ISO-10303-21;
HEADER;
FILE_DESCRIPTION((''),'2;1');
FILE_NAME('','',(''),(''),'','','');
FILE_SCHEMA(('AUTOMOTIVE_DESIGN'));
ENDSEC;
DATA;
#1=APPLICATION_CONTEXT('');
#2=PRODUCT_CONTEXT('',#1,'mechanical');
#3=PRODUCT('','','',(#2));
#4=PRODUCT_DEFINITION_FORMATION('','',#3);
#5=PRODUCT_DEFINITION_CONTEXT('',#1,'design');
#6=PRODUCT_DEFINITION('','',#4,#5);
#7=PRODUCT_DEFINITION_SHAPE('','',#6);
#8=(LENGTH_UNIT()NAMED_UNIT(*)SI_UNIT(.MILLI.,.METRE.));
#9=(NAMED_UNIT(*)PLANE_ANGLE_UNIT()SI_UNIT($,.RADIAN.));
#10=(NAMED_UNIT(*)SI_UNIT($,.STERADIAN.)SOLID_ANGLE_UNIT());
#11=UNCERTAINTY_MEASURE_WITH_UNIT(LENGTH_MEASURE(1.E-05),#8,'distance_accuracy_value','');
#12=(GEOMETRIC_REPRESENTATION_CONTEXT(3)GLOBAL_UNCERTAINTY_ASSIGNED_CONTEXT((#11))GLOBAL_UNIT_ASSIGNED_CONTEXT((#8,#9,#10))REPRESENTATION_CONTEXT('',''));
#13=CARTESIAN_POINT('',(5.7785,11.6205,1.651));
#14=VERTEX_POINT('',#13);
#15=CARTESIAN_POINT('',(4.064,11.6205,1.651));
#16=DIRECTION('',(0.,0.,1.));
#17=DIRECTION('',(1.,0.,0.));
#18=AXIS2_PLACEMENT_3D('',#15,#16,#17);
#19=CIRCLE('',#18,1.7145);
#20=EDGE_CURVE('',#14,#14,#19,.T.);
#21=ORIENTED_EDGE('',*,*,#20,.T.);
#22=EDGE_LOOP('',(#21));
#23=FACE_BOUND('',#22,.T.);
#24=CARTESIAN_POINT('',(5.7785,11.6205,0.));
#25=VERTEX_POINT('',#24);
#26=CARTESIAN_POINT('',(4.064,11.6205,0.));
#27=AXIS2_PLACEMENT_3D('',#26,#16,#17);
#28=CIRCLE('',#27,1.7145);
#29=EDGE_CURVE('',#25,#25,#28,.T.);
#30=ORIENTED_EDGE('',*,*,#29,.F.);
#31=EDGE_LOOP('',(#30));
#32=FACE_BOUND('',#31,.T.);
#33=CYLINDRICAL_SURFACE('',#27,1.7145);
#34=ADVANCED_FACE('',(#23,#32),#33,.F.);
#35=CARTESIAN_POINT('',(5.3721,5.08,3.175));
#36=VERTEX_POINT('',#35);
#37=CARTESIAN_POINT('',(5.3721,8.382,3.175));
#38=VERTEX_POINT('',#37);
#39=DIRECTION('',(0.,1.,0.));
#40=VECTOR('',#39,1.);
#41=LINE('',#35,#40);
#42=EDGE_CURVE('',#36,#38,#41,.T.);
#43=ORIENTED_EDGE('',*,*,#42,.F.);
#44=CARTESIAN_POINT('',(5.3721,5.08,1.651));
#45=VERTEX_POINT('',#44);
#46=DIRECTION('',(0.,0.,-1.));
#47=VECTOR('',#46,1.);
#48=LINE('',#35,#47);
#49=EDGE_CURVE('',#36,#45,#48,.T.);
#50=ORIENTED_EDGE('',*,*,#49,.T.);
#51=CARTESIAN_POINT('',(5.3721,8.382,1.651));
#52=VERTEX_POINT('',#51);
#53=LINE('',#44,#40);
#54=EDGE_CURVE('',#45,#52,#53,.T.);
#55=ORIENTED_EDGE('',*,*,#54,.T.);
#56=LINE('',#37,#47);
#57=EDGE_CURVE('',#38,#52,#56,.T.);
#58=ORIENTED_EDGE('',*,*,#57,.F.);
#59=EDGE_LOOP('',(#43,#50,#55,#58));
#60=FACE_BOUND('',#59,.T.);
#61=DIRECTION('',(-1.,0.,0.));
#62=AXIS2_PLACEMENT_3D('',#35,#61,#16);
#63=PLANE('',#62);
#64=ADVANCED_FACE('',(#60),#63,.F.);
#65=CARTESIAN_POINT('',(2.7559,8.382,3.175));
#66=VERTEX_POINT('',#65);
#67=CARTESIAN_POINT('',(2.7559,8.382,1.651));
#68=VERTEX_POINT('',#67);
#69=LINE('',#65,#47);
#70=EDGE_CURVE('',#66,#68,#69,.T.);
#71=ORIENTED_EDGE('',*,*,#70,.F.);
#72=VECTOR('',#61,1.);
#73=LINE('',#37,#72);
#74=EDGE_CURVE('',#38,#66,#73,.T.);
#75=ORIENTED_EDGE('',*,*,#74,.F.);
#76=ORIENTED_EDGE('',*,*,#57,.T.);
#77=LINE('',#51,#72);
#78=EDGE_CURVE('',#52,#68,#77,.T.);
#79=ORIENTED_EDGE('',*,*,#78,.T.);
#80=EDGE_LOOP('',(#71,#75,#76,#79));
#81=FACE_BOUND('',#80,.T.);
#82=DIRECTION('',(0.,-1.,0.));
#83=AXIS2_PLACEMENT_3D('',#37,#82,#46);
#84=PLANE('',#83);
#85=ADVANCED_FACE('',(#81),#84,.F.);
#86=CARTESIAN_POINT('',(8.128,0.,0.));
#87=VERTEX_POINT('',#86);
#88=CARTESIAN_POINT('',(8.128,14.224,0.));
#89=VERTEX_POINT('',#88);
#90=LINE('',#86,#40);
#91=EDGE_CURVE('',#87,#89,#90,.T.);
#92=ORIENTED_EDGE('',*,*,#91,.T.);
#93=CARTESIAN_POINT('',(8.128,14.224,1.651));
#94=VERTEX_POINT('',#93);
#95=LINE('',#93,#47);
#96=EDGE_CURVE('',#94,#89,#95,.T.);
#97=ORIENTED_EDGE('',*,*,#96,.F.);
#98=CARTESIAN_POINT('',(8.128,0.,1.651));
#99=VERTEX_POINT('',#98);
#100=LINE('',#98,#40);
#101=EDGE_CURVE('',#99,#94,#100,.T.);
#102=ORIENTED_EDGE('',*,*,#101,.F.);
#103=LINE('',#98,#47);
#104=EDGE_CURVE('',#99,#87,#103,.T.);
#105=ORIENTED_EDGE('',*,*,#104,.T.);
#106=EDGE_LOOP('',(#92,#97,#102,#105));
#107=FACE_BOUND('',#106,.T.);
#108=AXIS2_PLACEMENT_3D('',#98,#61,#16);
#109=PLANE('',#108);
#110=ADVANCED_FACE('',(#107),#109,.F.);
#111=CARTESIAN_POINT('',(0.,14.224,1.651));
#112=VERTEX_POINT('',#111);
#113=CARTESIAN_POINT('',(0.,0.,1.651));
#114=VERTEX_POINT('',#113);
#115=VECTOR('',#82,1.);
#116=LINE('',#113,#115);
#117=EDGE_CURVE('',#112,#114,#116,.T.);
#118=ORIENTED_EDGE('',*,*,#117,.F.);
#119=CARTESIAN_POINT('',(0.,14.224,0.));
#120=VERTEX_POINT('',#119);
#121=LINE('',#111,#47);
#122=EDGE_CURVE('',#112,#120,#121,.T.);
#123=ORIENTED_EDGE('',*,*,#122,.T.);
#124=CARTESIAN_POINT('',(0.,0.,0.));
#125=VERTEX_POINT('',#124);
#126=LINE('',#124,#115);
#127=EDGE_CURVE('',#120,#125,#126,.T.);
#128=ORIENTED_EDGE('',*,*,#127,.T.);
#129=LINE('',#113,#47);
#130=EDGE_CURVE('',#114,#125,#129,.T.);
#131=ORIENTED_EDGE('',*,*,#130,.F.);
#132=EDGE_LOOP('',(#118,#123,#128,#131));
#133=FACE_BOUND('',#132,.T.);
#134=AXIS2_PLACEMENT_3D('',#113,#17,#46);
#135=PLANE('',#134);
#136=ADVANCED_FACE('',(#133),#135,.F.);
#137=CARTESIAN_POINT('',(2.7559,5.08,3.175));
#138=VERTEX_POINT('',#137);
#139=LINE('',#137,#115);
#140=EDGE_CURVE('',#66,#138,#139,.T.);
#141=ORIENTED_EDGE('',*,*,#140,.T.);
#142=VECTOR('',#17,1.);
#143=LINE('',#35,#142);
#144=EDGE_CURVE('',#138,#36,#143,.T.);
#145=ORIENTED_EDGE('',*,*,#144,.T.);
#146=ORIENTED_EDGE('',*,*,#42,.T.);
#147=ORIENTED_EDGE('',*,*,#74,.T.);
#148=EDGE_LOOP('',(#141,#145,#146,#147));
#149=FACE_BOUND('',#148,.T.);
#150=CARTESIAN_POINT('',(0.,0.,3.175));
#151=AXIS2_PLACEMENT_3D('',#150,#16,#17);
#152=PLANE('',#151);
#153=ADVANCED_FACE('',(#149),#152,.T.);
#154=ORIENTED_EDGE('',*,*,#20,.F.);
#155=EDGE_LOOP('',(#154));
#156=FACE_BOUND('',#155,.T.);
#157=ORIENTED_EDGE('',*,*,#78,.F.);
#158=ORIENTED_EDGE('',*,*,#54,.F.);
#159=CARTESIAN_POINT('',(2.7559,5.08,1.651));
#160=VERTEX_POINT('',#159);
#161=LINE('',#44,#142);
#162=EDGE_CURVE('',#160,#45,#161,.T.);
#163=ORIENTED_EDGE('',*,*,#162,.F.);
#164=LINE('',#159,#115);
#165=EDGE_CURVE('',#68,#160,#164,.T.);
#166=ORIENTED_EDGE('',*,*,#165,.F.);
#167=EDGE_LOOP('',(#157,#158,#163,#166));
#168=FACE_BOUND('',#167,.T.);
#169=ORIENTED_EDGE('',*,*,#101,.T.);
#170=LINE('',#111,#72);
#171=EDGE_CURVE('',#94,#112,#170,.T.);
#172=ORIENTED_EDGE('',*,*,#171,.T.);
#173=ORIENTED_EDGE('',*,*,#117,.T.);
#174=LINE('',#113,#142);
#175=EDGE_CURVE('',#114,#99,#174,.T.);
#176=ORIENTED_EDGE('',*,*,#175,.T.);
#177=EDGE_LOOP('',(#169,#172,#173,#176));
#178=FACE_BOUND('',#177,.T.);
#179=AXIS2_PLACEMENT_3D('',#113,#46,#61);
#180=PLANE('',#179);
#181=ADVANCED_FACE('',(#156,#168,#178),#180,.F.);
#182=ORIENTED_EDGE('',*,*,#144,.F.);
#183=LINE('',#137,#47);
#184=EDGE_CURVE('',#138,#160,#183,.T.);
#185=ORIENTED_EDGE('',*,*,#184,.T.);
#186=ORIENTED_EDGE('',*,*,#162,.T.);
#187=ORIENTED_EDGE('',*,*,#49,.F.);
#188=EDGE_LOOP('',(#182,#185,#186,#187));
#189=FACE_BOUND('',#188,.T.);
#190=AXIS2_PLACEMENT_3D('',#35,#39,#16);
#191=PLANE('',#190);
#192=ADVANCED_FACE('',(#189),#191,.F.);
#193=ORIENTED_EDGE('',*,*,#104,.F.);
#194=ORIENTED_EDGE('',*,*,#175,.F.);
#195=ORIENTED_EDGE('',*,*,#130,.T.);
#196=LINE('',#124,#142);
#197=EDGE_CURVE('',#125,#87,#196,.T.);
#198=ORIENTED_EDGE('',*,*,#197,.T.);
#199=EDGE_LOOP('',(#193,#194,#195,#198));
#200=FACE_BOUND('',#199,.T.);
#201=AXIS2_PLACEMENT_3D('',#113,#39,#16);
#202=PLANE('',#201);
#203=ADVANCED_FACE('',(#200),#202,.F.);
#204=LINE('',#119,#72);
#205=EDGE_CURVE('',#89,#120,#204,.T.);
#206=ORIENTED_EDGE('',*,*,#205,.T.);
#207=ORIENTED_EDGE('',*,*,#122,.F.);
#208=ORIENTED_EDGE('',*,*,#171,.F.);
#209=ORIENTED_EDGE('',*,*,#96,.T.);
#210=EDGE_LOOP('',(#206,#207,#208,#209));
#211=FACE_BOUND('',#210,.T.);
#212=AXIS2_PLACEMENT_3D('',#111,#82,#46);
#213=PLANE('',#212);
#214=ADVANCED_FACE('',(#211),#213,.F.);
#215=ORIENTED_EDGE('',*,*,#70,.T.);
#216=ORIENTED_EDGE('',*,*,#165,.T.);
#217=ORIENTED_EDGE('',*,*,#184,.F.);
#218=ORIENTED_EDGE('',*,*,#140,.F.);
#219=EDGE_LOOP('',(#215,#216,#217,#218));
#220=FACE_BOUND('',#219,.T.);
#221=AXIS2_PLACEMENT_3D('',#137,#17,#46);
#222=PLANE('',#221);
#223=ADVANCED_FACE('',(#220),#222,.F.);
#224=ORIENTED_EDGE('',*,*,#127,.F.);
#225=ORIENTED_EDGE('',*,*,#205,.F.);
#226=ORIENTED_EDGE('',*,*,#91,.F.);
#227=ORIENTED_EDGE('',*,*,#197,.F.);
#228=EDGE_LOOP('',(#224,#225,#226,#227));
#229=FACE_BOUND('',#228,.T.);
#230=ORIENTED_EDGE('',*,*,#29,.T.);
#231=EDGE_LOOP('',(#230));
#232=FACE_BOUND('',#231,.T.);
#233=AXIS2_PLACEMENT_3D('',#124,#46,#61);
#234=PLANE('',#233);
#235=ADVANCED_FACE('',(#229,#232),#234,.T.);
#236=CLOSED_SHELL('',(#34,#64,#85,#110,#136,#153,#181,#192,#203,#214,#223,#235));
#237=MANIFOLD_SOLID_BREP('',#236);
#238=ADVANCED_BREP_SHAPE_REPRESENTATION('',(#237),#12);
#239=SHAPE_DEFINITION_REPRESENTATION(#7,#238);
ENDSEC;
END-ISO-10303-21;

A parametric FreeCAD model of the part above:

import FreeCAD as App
import Part
import Sketcher

V = App.Vector
Q = App.Units.Quantity


def add_polygon(sketch, points):
    """Adds a closed chain of lines whose ends are joined by coincident constraints."""
    first, n = sketch.GeometryCount, len(points)
    for a, b in zip(points, points[1:] + points[:1]):
        sketch.addGeometry(Part.LineSegment(App.Vector(*a, 0), App.Vector(*b, 0)), False)
    for i in range(n):
        sketch.addConstraint(Sketcher.Constraint("Coincident", first + i, 2, first + (i + 1) % n, 1))

doc = App.newDocument("Part")
body = doc.addObject("PartDesign::Body", "Body")

sketch1 = body.newObject("Sketcher::SketchObject", "Sketch")
sketch1.AttachmentSupport = (doc.getObject("XY_Plane"), [""])
sketch1.MapMode = "FlatFace"
add_polygon(sketch1, [(0, 14), (0, 0), (8, 0), (8, 14)])
sketch1.addConstraint([
    Sketcher.Constraint("Vertical", 0),
    Sketcher.Constraint("Horizontal", 1),
    Sketcher.Constraint("Vertical", 2),
    Sketcher.Constraint("Horizontal", 3),
    Sketcher.Constraint("Coincident", 0, 2, -1, 1),
    Sketcher.Constraint("DistanceX", 1, 1, 1, 2, Q("0.32 in")),
    Sketcher.Constraint("DistanceY", 0, 2, 0, 1, Q("0.56 in")),
])
pad1 = body.newObject("PartDesign::Pad", "Pad")
pad1.Profile = sketch1
pad1.Length = Q("0.065 in")

sketch2 = body.newObject("Sketcher::SketchObject", "Sketch001")
sketch2.AttachmentSupport = (doc.getObject("XY_Plane"), [""])
sketch2.MapMode = "FlatFace"
sketch2.AttachmentOffset = App.Placement(V(0, 0, 0.065 * 25.4), App.Rotation())
add_polygon(sketch2, [(2.8, 8.4), (2.8, 5.1), (5.4, 5.1), (5.4, 8.4)])
sketch2.addConstraint([
    Sketcher.Constraint("Vertical", 0),
    Sketcher.Constraint("Horizontal", 1),
    Sketcher.Constraint("Vertical", 2),
    Sketcher.Constraint("Horizontal", 3),
    Sketcher.Constraint("DistanceY", 0, 2, 0, 1, Q("0.13 in")),
    Sketcher.Constraint("DistanceY", -1, 1, 0, 2, Q("0.2 in")),
    Sketcher.Constraint("DistanceX", 1, 1, 1, 2, Q("0.103 in")),
    Sketcher.Constraint("DistanceX", -1, 1, 0, 2, Q("0.1085 in")),
])
pad2 = body.newObject("PartDesign::Pad", "Pad001")
pad2.Profile = sketch2
pad2.Length = Q("0.06 in")

sketch3 = body.newObject("Sketcher::SketchObject", "Sketch002")
sketch3.AttachmentSupport = (doc.getObject("XY_Plane"), [""])
sketch3.MapMode = "FlatFace"
sketch3.AttachmentOffset = App.Placement(V(0, 0, 0.065 * 25.4), App.Rotation())
sketch3.addGeometry(Part.Circle(V(4.1, 11.6, 0), V(0, 0, 1), 1.7), False)
sketch3.addConstraint([
    Sketcher.Constraint("Diameter", 0, Q("0.135 in")),
    Sketcher.Constraint("DistanceX", -1, 1, 0, 3, Q("0.16 in")),
    Sketcher.Constraint("DistanceY", -1, 1, 0, 3, Q("0.4575 in")),
])
pocket1 = body.newObject("PartDesign::Pocket", "Pocket")
pocket1.Profile = sketch3
pocket1.Type = "ThroughAll"

doc.recompute()
